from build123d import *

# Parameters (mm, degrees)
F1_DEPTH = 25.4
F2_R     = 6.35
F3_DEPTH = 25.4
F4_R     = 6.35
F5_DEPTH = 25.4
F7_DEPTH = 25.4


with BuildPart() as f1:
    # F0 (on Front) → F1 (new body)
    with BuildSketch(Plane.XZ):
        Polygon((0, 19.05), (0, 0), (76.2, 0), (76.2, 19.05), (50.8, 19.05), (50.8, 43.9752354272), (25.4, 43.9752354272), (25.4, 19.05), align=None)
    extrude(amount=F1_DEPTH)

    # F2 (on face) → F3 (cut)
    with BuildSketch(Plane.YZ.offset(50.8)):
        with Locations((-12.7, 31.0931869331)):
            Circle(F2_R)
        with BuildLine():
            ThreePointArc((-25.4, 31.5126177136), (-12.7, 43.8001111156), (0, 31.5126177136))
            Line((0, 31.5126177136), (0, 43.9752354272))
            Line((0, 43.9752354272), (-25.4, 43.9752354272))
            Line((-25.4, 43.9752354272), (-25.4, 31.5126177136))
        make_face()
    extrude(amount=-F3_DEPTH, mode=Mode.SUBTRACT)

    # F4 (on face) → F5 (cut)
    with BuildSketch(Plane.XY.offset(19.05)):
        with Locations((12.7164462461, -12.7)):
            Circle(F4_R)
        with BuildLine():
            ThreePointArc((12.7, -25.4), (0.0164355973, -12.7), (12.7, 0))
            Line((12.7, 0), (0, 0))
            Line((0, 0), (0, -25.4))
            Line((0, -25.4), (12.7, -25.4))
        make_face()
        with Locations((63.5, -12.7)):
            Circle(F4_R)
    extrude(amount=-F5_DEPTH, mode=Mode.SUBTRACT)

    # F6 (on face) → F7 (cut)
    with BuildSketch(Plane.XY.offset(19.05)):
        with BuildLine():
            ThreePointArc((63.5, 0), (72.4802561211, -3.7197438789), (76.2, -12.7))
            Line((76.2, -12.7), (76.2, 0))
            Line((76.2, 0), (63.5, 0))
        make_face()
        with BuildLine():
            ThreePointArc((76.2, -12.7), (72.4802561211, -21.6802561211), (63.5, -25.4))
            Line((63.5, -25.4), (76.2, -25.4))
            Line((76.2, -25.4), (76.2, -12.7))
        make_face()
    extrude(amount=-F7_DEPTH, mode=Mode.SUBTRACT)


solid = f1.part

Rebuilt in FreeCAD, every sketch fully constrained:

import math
import FreeCAD as App
import Part
import Sketcher

V = App.Vector
Q = App.Units.Quantity

doc = App.newDocument("Part")
body = doc.addObject("PartDesign::Body", "Body")

sketch1 = body.newObject("Sketcher::SketchObject", "Sketch")
sketch1.AttachmentSupport = (doc.getObject("XZ_Plane"), [""])
sketch1.MapMode = "FlatFace"
sketch1.addGeometry(Part.LineSegment(V(0, 19, 0), V(0, 0, 0)), False)
sketch1.addGeometry(Part.LineSegment(V(0, 0, 0), V(76, 0, 0)), False)
sketch1.addGeometry(Part.LineSegment(V(76, 0, 0), V(76, 19, 0)), False)
sketch1.addGeometry(Part.LineSegment(V(76, 19, 0), V(51, 19, 0)), False)
sketch1.addGeometry(Part.LineSegment(V(51, 19, 0), V(51, 44, 0)), False)
sketch1.addGeometry(Part.LineSegment(V(51, 44, 0), V(25, 44, 0)), False)
sketch1.addGeometry(Part.LineSegment(V(25, 44, 0), V(25, 19, 0)), False)
sketch1.addGeometry(Part.LineSegment(V(25, 19, 0), V(0, 19, 0)), False)
sketch1.addConstraint(Sketcher.Constraint("Coincident", 0, 2, 1, 1))
sketch1.addConstraint(Sketcher.Constraint("Coincident", 1, 2, 2, 1))
sketch1.addConstraint(Sketcher.Constraint("Coincident", 2, 2, 3, 1))
sketch1.addConstraint(Sketcher.Constraint("Coincident", 3, 2, 4, 1))
sketch1.addConstraint(Sketcher.Constraint("Coincident", 4, 2, 5, 1))
sketch1.addConstraint(Sketcher.Constraint("Coincident", 5, 2, 6, 1))
sketch1.addConstraint(Sketcher.Constraint("Coincident", 6, 2, 7, 1))
sketch1.addConstraint(Sketcher.Constraint("Coincident", 7, 2, 0, 1))
sketch1.addConstraint(Sketcher.Constraint("Vertical", 0))
sketch1.addConstraint(Sketcher.Constraint("Horizontal", 1))
sketch1.addConstraint(Sketcher.Constraint("Vertical", 2))
sketch1.addConstraint(Sketcher.Constraint("Horizontal", 3))
sketch1.addConstraint(Sketcher.Constraint("Vertical", 4))
sketch1.addConstraint(Sketcher.Constraint("Horizontal", 5))
sketch1.addConstraint(Sketcher.Constraint("Vertical", 6))
sketch1.addConstraint(Sketcher.Constraint("Horizontal", 7))
sketch1.addConstraint(Sketcher.Constraint("Coincident", 0, 2, -1, 1))
sketch1.addConstraint(Sketcher.Constraint("Horizontal", 3, 2, 6, 2))
sketch1.addConstraint(Sketcher.Constraint("Equal", 3, 5))
sketch1.addConstraint(Sketcher.Constraint("Equal", 5, 7))
sketch1.addConstraint(Sketcher.Constraint("DistanceX", 1, 1, 1, 2, Q("3 in")))
sketch1.addConstraint(Sketcher.Constraint("DistanceY", 0, 2, 0, 1, Q("0.75 in")))
sketch1.addConstraint(Sketcher.Constraint("DistanceY", 4, 1, 4, 2, 24.925235))
pad1 = body.newObject("PartDesign::Pad", "Pad")
pad1.Profile = sketch1
pad1.Length = Q("1 in")

sketch2 = body.newObject("Sketcher::SketchObject", "Sketch001")
sketch2.AttachmentSupport = (doc.getObject("YZ_Plane"), [""])
sketch2.MapMode = "FlatFace"
sketch2.AttachmentOffset = App.Placement(V(0, 0, 2 * 25.4), App.Rotation())
sketch2.addGeometry(Part.Circle(V(-13, 31, 0), V(0, 0, 1), 6), False)
sketch2.addGeometry(Part.ArcOfCircle(Part.Circle(V(-13, 31, 0), V(0, 0, 1), 13), math.radians(2), math.radians(178)), False)
sketch2.addGeometry(Part.LineSegment(V(0, 32, 0), V(0, 44, 0)), False)
sketch2.addGeometry(Part.LineSegment(V(0, 44, 0), V(-25, 44, 0)), False)
sketch2.addGeometry(Part.LineSegment(V(-25, 44, 0), V(-25, 32, 0)), False)
sketch2.addConstraint(Sketcher.Constraint("Coincident", 1, 1, 2, 1))
sketch2.addConstraint(Sketcher.Constraint("Coincident", 2, 2, 3, 1))
sketch2.addConstraint(Sketcher.Constraint("Coincident", 3, 2, 4, 1))
sketch2.addConstraint(Sketcher.Constraint("Coincident", 4, 2, 1, 2))
sketch2.addConstraint(Sketcher.Constraint("Vertical", 2))
sketch2.addConstraint(Sketcher.Constraint("Horizontal", 3))
sketch2.addConstraint(Sketcher.Constraint("Vertical", 4))
sketch2.addConstraint(Sketcher.Constraint("Coincident", 1, 3, 0, 3))
sketch2.addConstraint(Sketcher.Constraint("PointOnObject", 1, 1, -2))
sketch2.addConstraint(Sketcher.Constraint("Horizontal", 1, 1, 4, 2))
sketch2.addConstraint(Sketcher.Constraint("Diameter", 0, Q("0.5 in")))
sketch2.addConstraint(Sketcher.Constraint("DistanceX", 3, 2, 3, 1, Q("1 in")))
sketch2.addConstraint(Sketcher.Constraint("Radius", 1, 12.706924))
sketch2.addConstraint(Sketcher.Constraint("DistanceY", 2, 1, 2, 2, 12.462618))
sketch2.addConstraint(Sketcher.Constraint("DistanceY", -1, 1, 0, 3, 31.093187))
pocket1 = body.newObject("PartDesign::Pocket", "Pocket")
pocket1.Profile = sketch2
pocket1.Length = Q("1 in")

sketch3 = body.newObject("Sketcher::SketchObject", "Sketch002")
sketch3.AttachmentSupport = (doc.getObject("XY_Plane"), [""])
sketch3.MapMode = "FlatFace"
sketch3.AttachmentOffset = App.Placement(V(0, 0, 0.75 * 25.4), App.Rotation())
sketch3.addGeometry(Part.Circle(V(13, -13, 0), V(0, 0, 1), 6), False)
sketch3.addGeometry(Part.ArcOfCircle(Part.Circle(V(13, -13, 0), V(0, 0, 1), 13), math.radians(90), math.radians(270)), False)
sketch3.addGeometry(Part.LineSegment(V(13, 0, 0), V(0, 0, 0)), False)
sketch3.addGeometry(Part.LineSegment(V(0, 0, 0), V(0, -25, 0)), False)
sketch3.addGeometry(Part.LineSegment(V(0, -25, 0), V(13, -25, 0)), False)
sketch3.addGeometry(Part.Circle(V(64, -13, 0), V(0, 0, 1), 6), False)
sketch3.addConstraint(Sketcher.Constraint("Coincident", 1, 1, 2, 1))
sketch3.addConstraint(Sketcher.Constraint("Coincident", 2, 2, 3, 1))
sketch3.addConstraint(Sketcher.Constraint("Coincident", 3, 2, 4, 1))
sketch3.addConstraint(Sketcher.Constraint("Coincident", 4, 2, 1, 2))
sketch3.addConstraint(Sketcher.Constraint("Horizontal", 2))
sketch3.addConstraint(Sketcher.Constraint("Vertical", 3))
sketch3.addConstraint(Sketcher.Constraint("Horizontal", 4))
sketch3.addConstraint(Sketcher.Constraint("Coincident", 2, 2, -1, 1))
sketch3.addConstraint(Sketcher.Constraint("Coincident", 1, 3, 0, 3))
sketch3.addConstraint(Sketcher.Constraint("Equal", 0, 5))
sketch3.addConstraint(Sketcher.Constraint("Horizontal", 1, 3, 5, 3))
sketch3.addConstraint(Sketcher.Constraint("Vertical", 1, 1, 4, 2))
sketch3.addConstraint(Sketcher.Constraint("Diameter", 0, Q("0.5 in")))
sketch3.addConstraint(Sketcher.Constraint("DistanceY", 3, 2, 3, 1, Q("1 in")))
sketch3.addConstraint(Sketcher.Constraint("DistanceX", 2, 2, 2, 1, Q("0.5 in")))
sketch3.addConstraint(Sketcher.Constraint("DistanceX", 1, 1, 5, 3, Q("2 in")))
sketch3.addConstraint(Sketcher.Constraint("DistanceX", -1, 1, 0, 3, 12.716446))
pocket2 = body.newObject("PartDesign::Pocket", "Pocket001")
pocket2.Profile = sketch3
pocket2.Length = Q("1 in")

sketch4 = body.newObject("Sketcher::SketchObject", "Sketch003")
sketch4.AttachmentSupport = (doc.getObject("XY_Plane"), [""])
sketch4.MapMode = "FlatFace"
sketch4.AttachmentOffset = App.Placement(V(0, 0, 0.75 * 25.4), App.Rotation())
sketch4.addGeometry(Part.ArcOfCircle(Part.Circle(V(64, -13, 0), V(0, 0, 1), 13), math.radians(0), math.radians(90)), False)
sketch4.addGeometry(Part.LineSegment(V(76, -13, 0), V(76, 0, 0)), False)
sketch4.addGeometry(Part.LineSegment(V(76, 0, 0), V(64, 0, 0)), False)
sketch4.addGeometry(Part.ArcOfCircle(Part.Circle(V(64, -13, 0), V(0, 0, 1), 13), math.radians(-90), math.radians(0)), False)
sketch4.addGeometry(Part.LineSegment(V(64, -25, 0), V(76, -25, 0)), False)
sketch4.addGeometry(Part.LineSegment(V(76, -25, 0), V(76, -13, 0)), False)
sketch4.addConstraint(Sketcher.Constraint("Tangent", 0, 1, 1, 1))
sketch4.addConstraint(Sketcher.Constraint("Coincident", 1, 2, 2, 1))
sketch4.addConstraint(Sketcher.Constraint("Tangent", 2, 2, 0, 2))
sketch4.addConstraint(Sketcher.Constraint("Tangent", 3, 1, 4, 1))
sketch4.addConstraint(Sketcher.Constraint("Coincident", 4, 2, 5, 1))
sketch4.addConstraint(Sketcher.Constraint("Tangent", 5, 2, 3, 2))
sketch4.addConstraint(Sketcher.Constraint("Vertical", 1))
sketch4.addConstraint(Sketcher.Constraint("Horizontal", 2))
sketch4.addConstraint(Sketcher.Constraint("Horizontal", 4))
sketch4.addConstraint(Sketcher.Constraint("Vertical", 5))
sketch4.addConstraint(Sketcher.Constraint("Coincident", 3, 3, 0, 3))
sketch4.addConstraint(Sketcher.Constraint("Equal", 0, 3))
sketch4.addConstraint(Sketcher.Constraint("PointOnObject", 1, 2, -1))
sketch4.addConstraint(Sketcher.Constraint("Radius", 0, Q("0.5 in")))
sketch4.addConstraint(Sketcher.Constraint("DistanceX", -1, 1, 0, 1, Q("3 in")))
pocket3 = body.newObject("PartDesign::Pocket", "Pocket002")
pocket3.Profile = sketch4
pocket3.Length = Q("1 in")

doc.recompute()
